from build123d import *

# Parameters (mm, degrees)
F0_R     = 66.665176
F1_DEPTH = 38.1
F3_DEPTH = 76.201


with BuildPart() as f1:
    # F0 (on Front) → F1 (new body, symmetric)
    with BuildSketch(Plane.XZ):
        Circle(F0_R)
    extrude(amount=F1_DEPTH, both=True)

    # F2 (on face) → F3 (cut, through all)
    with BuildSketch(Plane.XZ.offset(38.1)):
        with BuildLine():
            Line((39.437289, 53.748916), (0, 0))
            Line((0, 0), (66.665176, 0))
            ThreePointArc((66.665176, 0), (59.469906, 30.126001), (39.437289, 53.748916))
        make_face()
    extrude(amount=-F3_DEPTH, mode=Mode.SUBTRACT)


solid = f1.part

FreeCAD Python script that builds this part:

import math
import FreeCAD as App
import Part
import Sketcher
Q = App.Units.Quantity

doc = App.newDocument("Part")
body = doc.addObject("PartDesign::Body", "Body")

# Sketch on XZ plane
sketch1 = body.newObject("Sketcher::SketchObject", "Sketch")
sketch1.AttachmentSupport = (doc.getObject("XZ_Plane"), [""])
sketch1.MapMode = "FlatFace"
sketch1.addGeometry(Part.Circle(App.Vector(0, 0, 0), App.Vector(0, 0, 1), 66.665176), False)
sketch1.addConstraint(Sketcher.Constraint("Coincident", 0, 3, -1, 1))
sketch1.addConstraint(Sketcher.Constraint("Diameter", 0, 133.330352))
pad1 = body.newObject("PartDesign::Pad", "Pad")
pad1.Profile = sketch1
pad1.Length = Q("3 in")
pad1.Midplane = True

# Sketch on XZ plane
sketch2 = body.newObject("Sketcher::SketchObject", "Sketch001")
sketch2.AttachmentSupport = (doc.getObject("XZ_Plane"), [""])
sketch2.MapMode = "FlatFace"
sketch2.AttachmentOffset = App.Placement(App.Vector(0, 0, 1.5 * 25.4), App.Rotation())
sketch2.addGeometry(Part.LineSegment(App.Vector(39.437289, 53.748916, 0), App.Vector(0, 0, 0)), False)
sketch2.addGeometry(Part.LineSegment(App.Vector(0, 0, 0), App.Vector(66.665176, 0, 0)), False)
sketch2.addGeometry(Part.ArcOfCircle(Part.Circle(App.Vector(-0.000004, -0.000001, 0), App.Vector(0, 0, 1), 66.66518), math.radians(0.000001), math.radians(53.731317)), False)
sketch2.addConstraint(Sketcher.Constraint("Coincident", 0, 2, 1, 1))
sketch2.addConstraint(Sketcher.Constraint("Coincident", 1, 2, 2, 1))
sketch2.addConstraint(Sketcher.Constraint("Coincident", 2, 2, 0, 1))
sketch2.addConstraint(Sketcher.Constraint("Horizontal", 1))
sketch2.addConstraint(Sketcher.Constraint("Coincident", 2, 3, -1, 1))
sketch2.addConstraint(Sketcher.Constraint("Coincident", 0, 2, -1, 1))
sketch2.addConstraint(Sketcher.Constraint("Radius", 2, 66.66518))
sketch2.addConstraint(Sketcher.Constraint("DistanceX", -1, 1, 2, 2, 39.437289))
pocket1 = body.newObject("PartDesign::Pocket", "Pocket")
pocket1.Profile = sketch2
pocket1.Type = "ThroughAll"

doc.recompute()
